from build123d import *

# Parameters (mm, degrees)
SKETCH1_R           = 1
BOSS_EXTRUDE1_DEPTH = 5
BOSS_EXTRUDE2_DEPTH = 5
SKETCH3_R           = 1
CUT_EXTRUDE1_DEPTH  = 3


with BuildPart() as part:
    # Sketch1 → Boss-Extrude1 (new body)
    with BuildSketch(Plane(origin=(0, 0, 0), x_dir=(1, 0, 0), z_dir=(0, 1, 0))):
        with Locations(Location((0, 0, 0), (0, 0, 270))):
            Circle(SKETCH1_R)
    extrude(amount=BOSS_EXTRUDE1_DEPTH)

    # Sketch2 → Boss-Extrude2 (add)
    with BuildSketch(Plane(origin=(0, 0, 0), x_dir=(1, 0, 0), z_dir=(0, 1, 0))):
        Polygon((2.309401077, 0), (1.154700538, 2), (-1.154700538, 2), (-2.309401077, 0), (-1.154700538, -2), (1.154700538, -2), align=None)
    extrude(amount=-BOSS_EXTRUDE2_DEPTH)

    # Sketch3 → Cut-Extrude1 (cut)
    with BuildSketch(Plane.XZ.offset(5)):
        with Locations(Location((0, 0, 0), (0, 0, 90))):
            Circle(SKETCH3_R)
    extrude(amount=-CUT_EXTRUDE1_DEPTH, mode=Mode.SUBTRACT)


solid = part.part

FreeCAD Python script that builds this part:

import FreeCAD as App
import Part
import Sketcher

V = App.Vector
Q = App.Units.Quantity

doc = App.newDocument("Part")
body = doc.addObject("PartDesign::Body", "Body")

sketch1 = body.newObject("Sketcher::SketchObject", "Sketch")
sketch1.AttachmentSupport = (doc.getObject("XZ_Plane"), [""])
sketch1.MapMode = "FlatFace"
sketch1.addGeometry(Part.Circle(V(0, 0, 0), V(0, 0, 1), 1), False)
sketch1.addConstraint([
    Sketcher.Constraint("Coincident", 0, 3, -1, 1),
    Sketcher.Constraint("Diameter", 0, 2.0),
])
pad1 = body.newObject("PartDesign::Pad", "Pad")
pad1.Profile = sketch1
pad1.Length = 5
pad1.Reversed = True

sketch2 = body.newObject("Sketcher::SketchObject", "Sketch001")
sketch2.AttachmentSupport = (doc.getObject("XZ_Plane"), [""])
sketch2.MapMode = "FlatFace"
sketch2.addGeometry([
    Part.LineSegment(V(2.3, 0, 0), V(1.2, -2, 0)),
    Part.LineSegment(V(1.2, -2, 0), V(-1.2, -2, 0)),
    Part.LineSegment(V(-1.2, -2, 0), V(-2.3, 0, 0)),
    Part.LineSegment(V(-2.3, 0, 0), V(-1.2, 2, 0)),
    Part.LineSegment(V(-1.2, 2, 0), V(1.2, 2, 0)),
    Part.LineSegment(V(1.2, 2, 0), V(2.3, 0, 0)),
], False)
sketch2.addConstraint([
    Sketcher.Constraint("Coincident", 0, 2, 1, 1),
    Sketcher.Constraint("Coincident", 1, 2, 2, 1),
    Sketcher.Constraint("Coincident", 2, 2, 3, 1),
    Sketcher.Constraint("Coincident", 3, 2, 4, 1),
    Sketcher.Constraint("Coincident", 4, 2, 5, 1),
    Sketcher.Constraint("Coincident", 5, 2, 0, 1),
    Sketcher.Constraint("Horizontal", 1),
    Sketcher.Constraint("Horizontal", 4),
    Sketcher.Constraint("Symmetric", 0, 2, 3, 2, -1, 1),
    Sketcher.Constraint("Symmetric", 2, 2, 5, 2, -1, 1),
    Sketcher.Constraint("PointOnObject", 2, 2, -1),
    Sketcher.Constraint("Parallel", 2, 5),
    Sketcher.Constraint("Vertical", 1, 2, 3, 2),
    Sketcher.Constraint("Angle", 0, Q("-120 deg")),
    Sketcher.Constraint("DistanceY", 0, 2, -1, 1, 2.0),
    Sketcher.Constraint("DistanceX", 1, 2, 1, 1, 2.309401),
])
pad2 = body.newObject("PartDesign::Pad", "Pad001")
pad2.Profile = sketch2
pad2.Length = 5

sketch3 = body.newObject("Sketcher::SketchObject", "Sketch002")
sketch3.AttachmentSupport = (doc.getObject("XZ_Plane"), [""])
sketch3.MapMode = "FlatFace"
sketch3.AttachmentOffset = App.Placement(V(0, 0, 5), App.Rotation())
sketch3.addGeometry(Part.Circle(V(0, 0, 0), V(0, 0, 1), 1), False)
sketch3.addConstraint([
    Sketcher.Constraint("Coincident", 0, 3, -1, 1),
    Sketcher.Constraint("Diameter", 0, 2.0),
])
pocket1 = body.newObject("PartDesign::Pocket", "Pocket")
pocket1.Profile = sketch3
pocket1.Length = 3

doc.recompute()
